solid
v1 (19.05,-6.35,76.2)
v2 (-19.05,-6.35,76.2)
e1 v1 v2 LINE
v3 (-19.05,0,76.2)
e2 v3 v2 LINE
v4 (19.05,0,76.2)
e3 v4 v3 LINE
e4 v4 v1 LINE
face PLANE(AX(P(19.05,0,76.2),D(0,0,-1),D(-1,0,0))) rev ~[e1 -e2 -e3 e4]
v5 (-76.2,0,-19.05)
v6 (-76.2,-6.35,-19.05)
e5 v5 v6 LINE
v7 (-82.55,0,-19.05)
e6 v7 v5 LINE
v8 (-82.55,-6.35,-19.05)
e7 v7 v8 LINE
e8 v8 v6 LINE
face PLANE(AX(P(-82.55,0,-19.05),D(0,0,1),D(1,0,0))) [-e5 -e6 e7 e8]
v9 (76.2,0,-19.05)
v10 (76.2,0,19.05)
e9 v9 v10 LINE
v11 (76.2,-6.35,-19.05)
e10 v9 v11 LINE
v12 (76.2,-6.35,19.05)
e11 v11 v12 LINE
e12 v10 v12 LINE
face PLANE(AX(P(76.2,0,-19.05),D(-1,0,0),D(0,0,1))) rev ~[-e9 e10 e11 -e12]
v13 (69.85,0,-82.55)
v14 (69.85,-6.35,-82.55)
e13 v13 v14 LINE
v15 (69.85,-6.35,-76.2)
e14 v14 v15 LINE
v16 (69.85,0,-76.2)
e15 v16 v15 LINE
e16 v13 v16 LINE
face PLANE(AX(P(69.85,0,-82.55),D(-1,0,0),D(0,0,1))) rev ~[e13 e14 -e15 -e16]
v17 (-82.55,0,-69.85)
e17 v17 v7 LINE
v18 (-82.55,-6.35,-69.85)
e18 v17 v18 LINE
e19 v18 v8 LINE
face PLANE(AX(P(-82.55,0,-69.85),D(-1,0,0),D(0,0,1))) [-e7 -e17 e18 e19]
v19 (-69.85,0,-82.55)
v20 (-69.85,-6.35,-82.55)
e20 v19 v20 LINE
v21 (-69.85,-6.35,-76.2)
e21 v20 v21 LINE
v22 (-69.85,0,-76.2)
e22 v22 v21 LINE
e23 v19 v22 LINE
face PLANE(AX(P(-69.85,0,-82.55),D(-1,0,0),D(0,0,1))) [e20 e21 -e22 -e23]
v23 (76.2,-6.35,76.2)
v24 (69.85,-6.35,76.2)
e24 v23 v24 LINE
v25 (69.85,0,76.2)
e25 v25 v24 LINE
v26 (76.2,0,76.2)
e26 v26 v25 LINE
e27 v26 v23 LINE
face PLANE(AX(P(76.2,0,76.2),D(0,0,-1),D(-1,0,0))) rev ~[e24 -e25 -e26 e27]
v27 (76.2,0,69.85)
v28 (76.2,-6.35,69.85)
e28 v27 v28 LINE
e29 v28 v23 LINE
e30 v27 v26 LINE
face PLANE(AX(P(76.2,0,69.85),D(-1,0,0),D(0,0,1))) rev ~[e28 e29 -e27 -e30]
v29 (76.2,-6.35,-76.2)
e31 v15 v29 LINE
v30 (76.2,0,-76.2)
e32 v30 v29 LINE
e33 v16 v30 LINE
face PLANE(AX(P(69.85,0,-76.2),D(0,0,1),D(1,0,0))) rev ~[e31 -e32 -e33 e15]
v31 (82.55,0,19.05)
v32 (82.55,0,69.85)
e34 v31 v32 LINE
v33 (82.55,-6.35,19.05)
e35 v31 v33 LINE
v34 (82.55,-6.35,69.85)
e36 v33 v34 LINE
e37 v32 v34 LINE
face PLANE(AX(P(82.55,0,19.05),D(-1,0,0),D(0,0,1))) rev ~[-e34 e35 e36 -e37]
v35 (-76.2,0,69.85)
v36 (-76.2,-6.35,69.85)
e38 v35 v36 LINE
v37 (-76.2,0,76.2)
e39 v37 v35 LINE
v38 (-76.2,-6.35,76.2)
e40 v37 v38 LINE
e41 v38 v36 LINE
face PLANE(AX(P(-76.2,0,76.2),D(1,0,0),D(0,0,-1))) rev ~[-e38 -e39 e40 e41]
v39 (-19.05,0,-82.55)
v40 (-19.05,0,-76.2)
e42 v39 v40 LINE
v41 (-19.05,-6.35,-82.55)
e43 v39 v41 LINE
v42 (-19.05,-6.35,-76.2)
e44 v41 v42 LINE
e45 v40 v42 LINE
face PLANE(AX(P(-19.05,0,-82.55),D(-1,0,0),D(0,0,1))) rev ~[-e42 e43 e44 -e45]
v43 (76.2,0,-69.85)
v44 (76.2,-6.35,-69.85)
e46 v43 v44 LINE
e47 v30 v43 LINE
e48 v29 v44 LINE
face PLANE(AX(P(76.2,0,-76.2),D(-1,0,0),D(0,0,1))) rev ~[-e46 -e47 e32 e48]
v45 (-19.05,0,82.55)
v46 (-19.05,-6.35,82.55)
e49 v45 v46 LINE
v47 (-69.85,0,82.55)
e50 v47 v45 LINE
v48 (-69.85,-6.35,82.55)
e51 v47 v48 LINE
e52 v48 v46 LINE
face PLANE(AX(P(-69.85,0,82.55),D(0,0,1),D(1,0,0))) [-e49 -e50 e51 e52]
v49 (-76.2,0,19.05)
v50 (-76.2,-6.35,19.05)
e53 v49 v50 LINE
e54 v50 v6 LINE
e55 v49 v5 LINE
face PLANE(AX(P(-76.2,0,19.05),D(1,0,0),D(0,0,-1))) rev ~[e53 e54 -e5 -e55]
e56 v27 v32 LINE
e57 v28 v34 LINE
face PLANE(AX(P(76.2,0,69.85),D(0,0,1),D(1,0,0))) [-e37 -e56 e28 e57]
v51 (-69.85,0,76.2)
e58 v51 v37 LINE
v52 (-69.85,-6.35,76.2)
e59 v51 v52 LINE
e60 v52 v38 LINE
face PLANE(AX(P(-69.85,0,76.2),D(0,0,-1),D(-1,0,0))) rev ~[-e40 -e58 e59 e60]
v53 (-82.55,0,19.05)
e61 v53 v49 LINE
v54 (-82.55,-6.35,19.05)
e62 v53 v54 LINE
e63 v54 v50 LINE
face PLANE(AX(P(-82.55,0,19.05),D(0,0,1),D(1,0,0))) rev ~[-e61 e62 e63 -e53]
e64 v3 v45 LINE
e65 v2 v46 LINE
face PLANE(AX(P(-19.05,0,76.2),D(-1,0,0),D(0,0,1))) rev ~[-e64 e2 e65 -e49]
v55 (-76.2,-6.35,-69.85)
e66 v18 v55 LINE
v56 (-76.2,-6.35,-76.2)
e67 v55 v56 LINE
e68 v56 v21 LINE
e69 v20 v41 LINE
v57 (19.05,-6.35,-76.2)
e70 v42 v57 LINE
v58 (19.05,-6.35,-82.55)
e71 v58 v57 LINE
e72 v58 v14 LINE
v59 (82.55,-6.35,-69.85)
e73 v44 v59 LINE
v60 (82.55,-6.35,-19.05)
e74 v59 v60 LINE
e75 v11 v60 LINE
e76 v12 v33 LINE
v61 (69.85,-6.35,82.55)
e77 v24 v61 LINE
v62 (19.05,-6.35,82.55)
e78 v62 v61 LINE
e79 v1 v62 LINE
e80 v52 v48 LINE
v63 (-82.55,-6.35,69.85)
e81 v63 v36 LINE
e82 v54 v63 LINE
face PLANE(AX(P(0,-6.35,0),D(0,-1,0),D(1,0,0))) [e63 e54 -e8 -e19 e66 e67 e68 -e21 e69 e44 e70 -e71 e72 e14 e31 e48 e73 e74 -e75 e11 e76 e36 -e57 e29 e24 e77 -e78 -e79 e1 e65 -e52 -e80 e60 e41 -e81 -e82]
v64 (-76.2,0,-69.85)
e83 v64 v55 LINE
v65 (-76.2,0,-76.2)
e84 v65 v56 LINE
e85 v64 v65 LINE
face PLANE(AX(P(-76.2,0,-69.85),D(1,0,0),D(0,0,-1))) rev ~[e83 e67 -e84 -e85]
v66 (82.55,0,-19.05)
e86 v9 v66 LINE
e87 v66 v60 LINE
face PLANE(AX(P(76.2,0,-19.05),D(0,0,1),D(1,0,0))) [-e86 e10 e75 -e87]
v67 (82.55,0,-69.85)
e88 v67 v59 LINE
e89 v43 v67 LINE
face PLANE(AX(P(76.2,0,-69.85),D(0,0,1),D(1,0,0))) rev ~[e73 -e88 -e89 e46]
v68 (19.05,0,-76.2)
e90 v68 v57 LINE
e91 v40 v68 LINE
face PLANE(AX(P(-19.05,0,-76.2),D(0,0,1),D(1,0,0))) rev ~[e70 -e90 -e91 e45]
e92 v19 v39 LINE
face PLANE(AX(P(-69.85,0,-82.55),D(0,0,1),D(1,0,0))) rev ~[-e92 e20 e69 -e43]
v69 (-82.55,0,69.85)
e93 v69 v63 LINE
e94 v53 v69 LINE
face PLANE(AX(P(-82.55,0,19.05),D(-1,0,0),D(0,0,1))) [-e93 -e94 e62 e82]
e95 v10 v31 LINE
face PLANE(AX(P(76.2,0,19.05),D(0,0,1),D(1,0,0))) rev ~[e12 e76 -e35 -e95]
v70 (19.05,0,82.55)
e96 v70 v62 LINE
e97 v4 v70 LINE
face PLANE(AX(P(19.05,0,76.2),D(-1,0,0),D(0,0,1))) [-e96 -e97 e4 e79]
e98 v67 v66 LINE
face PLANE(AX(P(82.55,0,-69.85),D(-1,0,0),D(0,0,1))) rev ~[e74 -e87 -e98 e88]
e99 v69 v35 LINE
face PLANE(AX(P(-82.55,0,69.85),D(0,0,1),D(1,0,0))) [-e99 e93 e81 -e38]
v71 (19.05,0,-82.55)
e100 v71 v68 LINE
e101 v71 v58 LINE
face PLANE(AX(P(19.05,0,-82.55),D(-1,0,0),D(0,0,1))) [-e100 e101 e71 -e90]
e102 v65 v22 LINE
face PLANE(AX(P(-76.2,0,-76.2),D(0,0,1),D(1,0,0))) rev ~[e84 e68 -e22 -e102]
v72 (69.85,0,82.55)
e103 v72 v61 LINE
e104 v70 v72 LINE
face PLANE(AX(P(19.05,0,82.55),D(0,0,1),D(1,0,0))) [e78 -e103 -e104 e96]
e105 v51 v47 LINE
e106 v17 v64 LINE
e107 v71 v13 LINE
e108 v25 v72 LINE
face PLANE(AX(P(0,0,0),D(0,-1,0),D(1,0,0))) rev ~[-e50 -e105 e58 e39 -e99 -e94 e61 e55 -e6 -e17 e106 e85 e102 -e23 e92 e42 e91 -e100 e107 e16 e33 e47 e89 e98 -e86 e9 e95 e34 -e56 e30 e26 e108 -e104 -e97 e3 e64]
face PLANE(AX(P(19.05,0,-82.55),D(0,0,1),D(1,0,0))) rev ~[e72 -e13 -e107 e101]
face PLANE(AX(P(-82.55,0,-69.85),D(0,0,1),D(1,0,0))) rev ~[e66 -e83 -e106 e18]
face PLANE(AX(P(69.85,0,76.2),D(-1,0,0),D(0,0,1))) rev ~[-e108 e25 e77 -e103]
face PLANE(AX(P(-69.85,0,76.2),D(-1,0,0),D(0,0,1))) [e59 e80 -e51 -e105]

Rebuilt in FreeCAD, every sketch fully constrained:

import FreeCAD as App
import Part
import Sketcher
from FreeCAD import Vector
Q = App.Units.Quantity

doc = App.newDocument("Part")
body = doc.addObject("PartDesign::Body", "Body")

sketch1 = doc.addObject("Sketcher::SketchObject", "Sketch")
body.addObject(sketch1)
sketch1.AttachmentSupport = (doc.XZ_Plane, [""])
sketch1.MapMode = "FlatFace"
sketch1.addGeometry(Part.LineSegment(Vector(-76, 76, 0), Vector(-76, 70, 0)), False)
sketch1.addGeometry(Part.LineSegment(Vector(-76, 70, 0), Vector(-83, 70, 0)), False)
sketch1.addGeometry(Part.LineSegment(Vector(-83, 70, 0), Vector(-83, 19, 0)), False)
sketch1.addGeometry(Part.LineSegment(Vector(-83, 19, 0), Vector(-76, 19, 0)), False)
sketch1.addGeometry(Part.LineSegment(Vector(-76, 19, 0), Vector(-76, -19, 0)), False)
sketch1.addGeometry(Part.LineSegment(Vector(-76, -19, 0), Vector(-83, -19, 0)), False)
sketch1.addGeometry(Part.LineSegment(Vector(-83, -19, 0), Vector(-83, -70, 0)), False)
sketch1.addGeometry(Part.LineSegment(Vector(-83, -70, 0), Vector(-76, -70, 0)), False)
sketch1.addGeometry(Part.LineSegment(Vector(-76, -70, 0), Vector(-76, -76, 0)), False)
sketch1.addGeometry(Part.LineSegment(Vector(-76, -76, 0), Vector(-70, -76, 0)), False)
sketch1.addGeometry(Part.LineSegment(Vector(-70, -76, 0), Vector(-70, -83, 0)), False)
sketch1.addGeometry(Part.LineSegment(Vector(-70, -83, 0), Vector(-19, -83, 0)), False)
sketch1.addGeometry(Part.LineSegment(Vector(-19, -83, 0), Vector(-19, -76, 0)), False)
sketch1.addGeometry(Part.LineSegment(Vector(-19, -76, 0), Vector(19, -76, 0)), False)
sketch1.addGeometry(Part.LineSegment(Vector(19, -76, 0), Vector(19, -83, 0)), False)
sketch1.addGeometry(Part.LineSegment(Vector(19, -83, 0), Vector(70, -83, 0)), False)
sketch1.addGeometry(Part.LineSegment(Vector(70, -83, 0), Vector(70, -76, 0)), False)
sketch1.addGeometry(Part.LineSegment(Vector(70, -76, 0), Vector(76, -76, 0)), False)
sketch1.addGeometry(Part.LineSegment(Vector(76, -76, 0), Vector(76, -70, 0)), False)
sketch1.addGeometry(Part.LineSegment(Vector(76, -70, 0), Vector(83, -70, 0)), False)
sketch1.addGeometry(Part.LineSegment(Vector(83, -70, 0), Vector(83, -19, 0)), False)
sketch1.addGeometry(Part.LineSegment(Vector(83, -19, 0), Vector(76, -19, 0)), False)
sketch1.addGeometry(Part.LineSegment(Vector(76, -19, 0), Vector(76, 19, 0)), False)
sketch1.addGeometry(Part.LineSegment(Vector(76, 19, 0), Vector(83, 19, 0)), False)
sketch1.addGeometry(Part.LineSegment(Vector(83, 19, 0), Vector(83, 70, 0)), False)
sketch1.addGeometry(Part.LineSegment(Vector(83, 70, 0), Vector(76, 70, 0)), False)
sketch1.addGeometry(Part.LineSegment(Vector(76, 70, 0), Vector(76, 76, 0)), False)
sketch1.addGeometry(Part.LineSegment(Vector(76, 76, 0), Vector(70, 76, 0)), False)
sketch1.addGeometry(Part.LineSegment(Vector(70, 76, 0), Vector(70, 83, 0)), False)
sketch1.addGeometry(Part.LineSegment(Vector(70, 83, 0), Vector(19, 83, 0)), False)
sketch1.addGeometry(Part.LineSegment(Vector(19, 83, 0), Vector(19, 76, 0)), False)
sketch1.addGeometry(Part.LineSegment(Vector(19, 76, 0), Vector(-19, 76, 0)), False)
sketch1.addGeometry(Part.LineSegment(Vector(-19, 76, 0), Vector(-19, 83, 0)), False)
sketch1.addGeometry(Part.LineSegment(Vector(-19, 83, 0), Vector(-70, 83, 0)), False)
sketch1.addGeometry(Part.LineSegment(Vector(-70, 83, 0), Vector(-70, 76, 0)), False)
sketch1.addGeometry(Part.LineSegment(Vector(-70, 76, 0), Vector(-76, 76, 0)), False)
sketch1.addConstraint(Sketcher.Constraint("Coincident", 0, 2, 1, 1))
sketch1.addConstraint(Sketcher.Constraint("Coincident", 1, 2, 2, 1))
sketch1.addConstraint(Sketcher.Constraint("Coincident", 2, 2, 3, 1))
sketch1.addConstraint(Sketcher.Constraint("Coincident", 3, 2, 4, 1))
sketch1.addConstraint(Sketcher.Constraint("Coincident", 4, 2, 5, 1))
sketch1.addConstraint(Sketcher.Constraint("Coincident", 5, 2, 6, 1))
sketch1.addConstraint(Sketcher.Constraint("Coincident", 6, 2, 7, 1))
sketch1.addConstraint(Sketcher.Constraint("Coincident", 7, 2, 8, 1))
sketch1.addConstraint(Sketcher.Constraint("Coincident", 8, 2, 9, 1))
sketch1.addConstraint(Sketcher.Constraint("Coincident", 9, 2, 10, 1))
sketch1.addConstraint(Sketcher.Constraint("Coincident", 10, 2, 11, 1))
sketch1.addConstraint(Sketcher.Constraint("Coincident", 11, 2, 12, 1))
sketch1.addConstraint(Sketcher.Constraint("Coincident", 12, 2, 13, 1))
sketch1.addConstraint(Sketcher.Constraint("Coincident", 13, 2, 14, 1))
sketch1.addConstraint(Sketcher.Constraint("Coincident", 14, 2, 15, 1))
sketch1.addConstraint(Sketcher.Constraint("Coincident", 15, 2, 16, 1))
sketch1.addConstraint(Sketcher.Constraint("Coincident", 16, 2, 17, 1))
sketch1.addConstraint(Sketcher.Constraint("Coincident", 17, 2, 18, 1))
sketch1.addConstraint(Sketcher.Constraint("Coincident", 18, 2, 19, 1))
sketch1.addConstraint(Sketcher.Constraint("Coincident", 19, 2, 20, 1))
sketch1.addConstraint(Sketcher.Constraint("Coincident", 20, 2, 21, 1))
sketch1.addConstraint(Sketcher.Constraint("Coincident", 21, 2, 22, 1))
sketch1.addConstraint(Sketcher.Constraint("Coincident", 22, 2, 23, 1))
sketch1.addConstraint(Sketcher.Constraint("Coincident", 23, 2, 24, 1))
sketch1.addConstraint(Sketcher.Constraint("Coincident", 24, 2, 25, 1))
sketch1.addConstraint(Sketcher.Constraint("Coincident", 25, 2, 26, 1))
sketch1.addConstraint(Sketcher.Constraint("Coincident", 26, 2, 27, 1))
sketch1.addConstraint(Sketcher.Constraint("Coincident", 27, 2, 28, 1))
sketch1.addConstraint(Sketcher.Constraint("Coincident", 28, 2, 29, 1))
sketch1.addConstraint(Sketcher.Constraint("Coincident", 29, 2, 30, 1))
sketch1.addConstraint(Sketcher.Constraint("Coincident", 30, 2, 31, 1))
sketch1.addConstraint(Sketcher.Constraint("Coincident", 31, 2, 32, 1))
sketch1.addConstraint(Sketcher.Constraint("Coincident", 32, 2, 33, 1))
sketch1.addConstraint(Sketcher.Constraint("Coincident", 33, 2, 34, 1))
sketch1.addConstraint(Sketcher.Constraint("Coincident", 34, 2, 35, 1))
sketch1.addConstraint(Sketcher.Constraint("Coincident", 35, 2, 0, 1))
sketch1.addConstraint(Sketcher.Constraint("Vertical", 0))
sketch1.addConstraint(Sketcher.Constraint("Horizontal", 1))
sketch1.addConstraint(Sketcher.Constraint("Vertical", 2))
sketch1.addConstraint(Sketcher.Constraint("Horizontal", 3))
sketch1.addConstraint(Sketcher.Constraint("Vertical", 4))
sketch1.addConstraint(Sketcher.Constraint("Horizontal", 5))
sketch1.addConstraint(Sketcher.Constraint("Vertical", 6))
sketch1.addConstraint(Sketcher.Constraint("Horizontal", 7))
sketch1.addConstraint(Sketcher.Constraint("Vertical", 8))
sketch1.addConstraint(Sketcher.Constraint("Horizontal", 9))
sketch1.addConstraint(Sketcher.Constraint("Vertical", 10))
sketch1.addConstraint(Sketcher.Constraint("Horizontal", 11))
sketch1.addConstraint(Sketcher.Constraint("Vertical", 12))
sketch1.addConstraint(Sketcher.Constraint("Horizontal", 13))
sketch1.addConstraint(Sketcher.Constraint("Vertical", 14))
sketch1.addConstraint(Sketcher.Constraint("Horizontal", 15))
sketch1.addConstraint(Sketcher.Constraint("Vertical", 16))
sketch1.addConstraint(Sketcher.Constraint("Horizontal", 17))
sketch1.addConstraint(Sketcher.Constraint("Vertical", 18))
sketch1.addConstraint(Sketcher.Constraint("Horizontal", 19))
sketch1.addConstraint(Sketcher.Constraint("Vertical", 20))
sketch1.addConstraint(Sketcher.Constraint("Horizontal", 21))
sketch1.addConstraint(Sketcher.Constraint("Vertical", 22))
sketch1.addConstraint(Sketcher.Constraint("Horizontal", 23))
sketch1.addConstraint(Sketcher.Constraint("Vertical", 24))
sketch1.addConstraint(Sketcher.Constraint("Horizontal", 25))
sketch1.addConstraint(Sketcher.Constraint("Vertical", 26))
sketch1.addConstraint(Sketcher.Constraint("Horizontal", 27))
sketch1.addConstraint(Sketcher.Constraint("Vertical", 28))
sketch1.addConstraint(Sketcher.Constraint("Horizontal", 29))
sketch1.addConstraint(Sketcher.Constraint("Vertical", 30))
sketch1.addConstraint(Sketcher.Constraint("Horizontal", 31))
sketch1.addConstraint(Sketcher.Constraint("Vertical", 32))
sketch1.addConstraint(Sketcher.Constraint("Horizontal", 33))
sketch1.addConstraint(Sketcher.Constraint("Vertical", 34))
sketch1.addConstraint(Sketcher.Constraint("Horizontal", 35))
sketch1.addConstraint(Sketcher.Constraint("Symmetric", 0, 2, 18, 2, -1, 1))
sketch1.addConstraint(Sketcher.Constraint("Symmetric", 2, 2, 20, 2, -1, 1))
sketch1.addConstraint(Sketcher.Constraint("Symmetric", 4, 2, 22, 2, -1, 1))
sketch1.addConstraint(Sketcher.Constraint("Symmetric", 6, 2, 24, 2, -1, 1))
sketch1.addConstraint(Sketcher.Constraint("Symmetric", 8, 2, 26, 2, -1, 1))
sketch1.addConstraint(Sketcher.Constraint("Symmetric", 10, 2, 28, 2, -1, 1))
sketch1.addConstraint(Sketcher.Constraint("Symmetric", 12, 2, 30, 2, -1, 1))
sketch1.addConstraint(Sketcher.Constraint("Symmetric", 14, 2, 32, 2, -1, 1))
sketch1.addConstraint(Sketcher.Constraint("Symmetric", 16, 2, 34, 2, -1, 1))
sketch1.addConstraint(Sketcher.Constraint("Symmetric", 11, 2, 14, 2, -2))
sketch1.addConstraint(Sketcher.Constraint("Symmetric", 9, 2, 16, 2, -2))
sketch1.addConstraint(Sketcher.Constraint("Symmetric", 7, 2, 18, 2, -2))
sketch1.addConstraint(Sketcher.Constraint("Symmetric", 5, 2, 20, 2, -2))
sketch1.addConstraint(Sketcher.Constraint("Horizontal", 9, 2, 12, 2))
sketch1.addConstraint(Sketcher.Constraint("Vertical", 0, 2, 3, 2))
sketch1.addConstraint(Sketcher.Constraint("Equal", 7, 9))
sketch1.addConstraint(Sketcher.Constraint("Equal", 35, 0))
sketch1.addConstraint(Sketcher.Constraint("Equal", 33, 2))
sketch1.addConstraint(Sketcher.Constraint("Equal", 31, 4))
sketch1.addConstraint(Sketcher.Constraint("Equal", 8, 10))
sketch1.addConstraint(Sketcher.Constraint("DistanceX", 11, 1, 11, 2, Q("2 in")))
sketch1.addConstraint(Sketcher.Constraint("DistanceX", 13, 1, 13, 2, Q("1.5 in")))
sketch1.addConstraint(Sketcher.Constraint("DistanceX", 0, 2, -1, 1, Q("3 in")))
pad1 = doc.addObject("PartDesign::Pad", "Pad")
body.addObject(pad1)
pad1.Profile = sketch1
pad1.Length = Q("0.25 in")

doc.recompute()
